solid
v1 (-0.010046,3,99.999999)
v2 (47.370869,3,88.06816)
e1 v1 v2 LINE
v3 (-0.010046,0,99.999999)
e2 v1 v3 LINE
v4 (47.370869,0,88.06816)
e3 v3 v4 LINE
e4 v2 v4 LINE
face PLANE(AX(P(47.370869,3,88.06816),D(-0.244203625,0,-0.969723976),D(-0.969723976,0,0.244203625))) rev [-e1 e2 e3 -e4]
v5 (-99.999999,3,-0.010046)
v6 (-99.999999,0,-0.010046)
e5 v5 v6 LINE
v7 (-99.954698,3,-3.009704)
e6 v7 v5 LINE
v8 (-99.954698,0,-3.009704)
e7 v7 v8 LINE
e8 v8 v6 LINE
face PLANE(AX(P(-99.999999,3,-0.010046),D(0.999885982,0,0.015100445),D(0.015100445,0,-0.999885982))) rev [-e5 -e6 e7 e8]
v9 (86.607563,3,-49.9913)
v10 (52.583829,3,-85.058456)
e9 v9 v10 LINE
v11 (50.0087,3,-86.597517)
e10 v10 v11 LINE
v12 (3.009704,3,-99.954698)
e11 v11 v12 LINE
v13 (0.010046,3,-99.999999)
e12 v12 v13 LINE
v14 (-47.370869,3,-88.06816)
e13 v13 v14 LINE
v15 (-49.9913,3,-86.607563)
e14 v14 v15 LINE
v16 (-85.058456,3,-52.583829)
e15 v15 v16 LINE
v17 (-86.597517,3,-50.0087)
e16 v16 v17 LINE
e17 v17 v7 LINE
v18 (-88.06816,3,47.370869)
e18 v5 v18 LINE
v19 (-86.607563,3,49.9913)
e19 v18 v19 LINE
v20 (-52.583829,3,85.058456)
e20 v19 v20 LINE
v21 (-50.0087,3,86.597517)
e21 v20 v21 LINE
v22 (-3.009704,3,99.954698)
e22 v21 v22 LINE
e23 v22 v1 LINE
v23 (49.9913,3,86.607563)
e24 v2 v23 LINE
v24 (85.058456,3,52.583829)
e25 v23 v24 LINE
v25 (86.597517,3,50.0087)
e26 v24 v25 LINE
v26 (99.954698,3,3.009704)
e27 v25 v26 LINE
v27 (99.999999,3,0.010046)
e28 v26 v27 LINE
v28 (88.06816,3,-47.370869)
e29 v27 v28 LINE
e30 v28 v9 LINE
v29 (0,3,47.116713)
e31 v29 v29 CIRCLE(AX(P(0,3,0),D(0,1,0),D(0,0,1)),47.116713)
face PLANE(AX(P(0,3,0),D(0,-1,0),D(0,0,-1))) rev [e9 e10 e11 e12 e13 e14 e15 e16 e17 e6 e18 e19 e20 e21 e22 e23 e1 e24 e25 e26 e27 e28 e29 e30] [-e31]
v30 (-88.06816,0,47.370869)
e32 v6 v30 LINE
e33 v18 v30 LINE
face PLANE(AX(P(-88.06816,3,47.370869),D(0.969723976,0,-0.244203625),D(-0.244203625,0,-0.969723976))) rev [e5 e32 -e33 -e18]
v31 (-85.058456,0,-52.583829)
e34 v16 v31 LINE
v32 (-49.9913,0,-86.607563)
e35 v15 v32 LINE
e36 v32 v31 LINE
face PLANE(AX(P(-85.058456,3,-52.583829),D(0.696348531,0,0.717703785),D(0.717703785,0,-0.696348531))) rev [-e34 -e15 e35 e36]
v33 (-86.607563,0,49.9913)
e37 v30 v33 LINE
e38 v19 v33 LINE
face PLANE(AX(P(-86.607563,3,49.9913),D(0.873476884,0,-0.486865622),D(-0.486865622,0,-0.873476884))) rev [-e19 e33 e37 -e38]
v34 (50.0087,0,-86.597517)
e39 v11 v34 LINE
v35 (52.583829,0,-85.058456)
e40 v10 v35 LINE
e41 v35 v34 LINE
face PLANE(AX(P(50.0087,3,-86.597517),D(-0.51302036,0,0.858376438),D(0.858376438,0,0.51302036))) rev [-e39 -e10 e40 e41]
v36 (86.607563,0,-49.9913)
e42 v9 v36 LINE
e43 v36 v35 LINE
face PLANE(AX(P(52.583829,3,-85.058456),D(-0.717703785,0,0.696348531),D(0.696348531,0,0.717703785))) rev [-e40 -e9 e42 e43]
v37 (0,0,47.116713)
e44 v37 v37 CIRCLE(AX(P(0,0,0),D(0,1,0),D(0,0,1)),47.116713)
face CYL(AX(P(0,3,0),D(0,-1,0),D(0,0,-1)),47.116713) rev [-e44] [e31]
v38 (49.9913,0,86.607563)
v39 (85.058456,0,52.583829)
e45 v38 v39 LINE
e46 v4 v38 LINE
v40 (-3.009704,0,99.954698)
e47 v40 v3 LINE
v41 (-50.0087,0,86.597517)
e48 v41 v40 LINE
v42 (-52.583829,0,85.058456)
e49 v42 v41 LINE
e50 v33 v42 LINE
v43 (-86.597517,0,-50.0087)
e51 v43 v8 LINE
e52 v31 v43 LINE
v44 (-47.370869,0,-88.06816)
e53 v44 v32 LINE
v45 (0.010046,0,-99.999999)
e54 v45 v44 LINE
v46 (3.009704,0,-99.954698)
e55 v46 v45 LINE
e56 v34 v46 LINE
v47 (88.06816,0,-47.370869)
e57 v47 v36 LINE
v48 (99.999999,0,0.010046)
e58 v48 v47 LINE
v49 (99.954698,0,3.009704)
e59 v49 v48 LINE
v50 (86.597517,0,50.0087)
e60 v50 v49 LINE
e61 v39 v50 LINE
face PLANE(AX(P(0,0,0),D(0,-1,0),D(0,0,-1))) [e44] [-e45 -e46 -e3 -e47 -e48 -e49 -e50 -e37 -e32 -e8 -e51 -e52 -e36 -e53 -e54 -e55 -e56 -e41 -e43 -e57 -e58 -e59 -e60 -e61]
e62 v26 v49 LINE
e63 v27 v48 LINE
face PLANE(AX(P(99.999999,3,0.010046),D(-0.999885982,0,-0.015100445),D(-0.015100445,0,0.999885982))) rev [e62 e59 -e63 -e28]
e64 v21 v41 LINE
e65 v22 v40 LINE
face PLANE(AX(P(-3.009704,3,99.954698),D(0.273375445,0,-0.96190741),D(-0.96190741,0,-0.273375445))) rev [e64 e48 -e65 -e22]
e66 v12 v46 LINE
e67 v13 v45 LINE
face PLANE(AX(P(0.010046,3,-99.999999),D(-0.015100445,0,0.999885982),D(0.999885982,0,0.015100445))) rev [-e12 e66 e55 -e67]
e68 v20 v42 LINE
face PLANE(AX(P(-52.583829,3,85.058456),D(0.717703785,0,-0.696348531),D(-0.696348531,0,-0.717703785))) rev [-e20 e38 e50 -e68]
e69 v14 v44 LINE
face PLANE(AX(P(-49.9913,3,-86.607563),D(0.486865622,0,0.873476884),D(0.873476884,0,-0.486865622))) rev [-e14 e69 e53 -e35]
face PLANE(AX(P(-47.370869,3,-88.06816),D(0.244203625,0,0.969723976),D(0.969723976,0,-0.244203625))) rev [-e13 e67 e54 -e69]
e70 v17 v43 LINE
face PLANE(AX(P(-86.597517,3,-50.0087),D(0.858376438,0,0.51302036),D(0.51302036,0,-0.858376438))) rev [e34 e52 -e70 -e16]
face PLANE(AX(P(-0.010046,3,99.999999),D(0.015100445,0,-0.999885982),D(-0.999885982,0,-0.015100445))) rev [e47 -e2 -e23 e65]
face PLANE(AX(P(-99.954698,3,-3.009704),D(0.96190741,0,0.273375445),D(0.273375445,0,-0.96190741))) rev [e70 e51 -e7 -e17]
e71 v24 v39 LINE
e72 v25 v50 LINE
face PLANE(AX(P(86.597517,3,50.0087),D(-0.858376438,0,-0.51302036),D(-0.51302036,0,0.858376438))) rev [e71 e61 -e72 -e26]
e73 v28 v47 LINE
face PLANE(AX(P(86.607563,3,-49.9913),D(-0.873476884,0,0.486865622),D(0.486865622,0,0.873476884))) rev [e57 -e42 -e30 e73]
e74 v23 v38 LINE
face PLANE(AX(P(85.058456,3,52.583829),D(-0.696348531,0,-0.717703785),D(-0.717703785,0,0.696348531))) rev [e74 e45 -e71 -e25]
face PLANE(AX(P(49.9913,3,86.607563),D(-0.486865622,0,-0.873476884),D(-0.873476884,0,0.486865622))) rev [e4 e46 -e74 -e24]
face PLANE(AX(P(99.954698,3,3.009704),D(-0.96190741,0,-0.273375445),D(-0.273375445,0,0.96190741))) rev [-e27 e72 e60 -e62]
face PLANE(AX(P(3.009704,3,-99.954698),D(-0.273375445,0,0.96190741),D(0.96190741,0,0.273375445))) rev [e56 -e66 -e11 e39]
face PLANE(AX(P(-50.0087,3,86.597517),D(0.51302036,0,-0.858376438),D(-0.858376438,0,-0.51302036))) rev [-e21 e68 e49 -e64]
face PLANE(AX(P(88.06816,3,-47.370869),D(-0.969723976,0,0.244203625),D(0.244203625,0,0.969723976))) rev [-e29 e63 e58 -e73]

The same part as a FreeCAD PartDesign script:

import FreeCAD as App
import Part
import Sketcher
from FreeCAD import Vector

doc = App.newDocument("Part")
params = doc.addObject("Spreadsheet::Sheet", "Params")
for row, (alias, value) in enumerate([
    ("sketch1_length", "3 mm"),
    ("sketch1_length2", "3 mm"),
    ("sketch1_length3", "3 mm"),
    ("sketch1_length4", "3 mm"),
    ("sketch1_length5", "3 mm"),
    ("pad1_length", "3 mm"),
], start=1):
    params.set(f"A{row}", alias)
    params.set(f"B{row}", "=" + value)
    params.setAlias(f"B{row}", alias)

body = doc.addObject("PartDesign::Body", "Body")

# Sketch on XZ plane
sketch1 = body.newObject("Sketcher::SketchObject", "Sketch")
sketch1.AttachmentSupport = (doc.getObject("XZ_Plane"), [""])
sketch1.MapMode = "FlatFace"
sketch1.addGeometry([
    Part.LineSegment(Vector(-99.999999, -0.010046, 0), Vector(-88.06816, 47.370869, 0)),  # 0
    Part.LineSegment(Vector(-88.06816, 47.370869, 0), Vector(-86.607563, 49.9913, 0)),  # 1
    Part.LineSegment(Vector(-86.607563, 49.9913, 0), Vector(-52.583829, 85.058456, 0)),  # 2
    Part.LineSegment(Vector(-52.583829, 85.058456, 0), Vector(-50.0087, 86.597517, 0)),  # 3
    Part.LineSegment(Vector(-50.0087, 86.597517, 0), Vector(-3.009704, 99.954698, 0)),  # 4
    Part.LineSegment(Vector(-3.009704, 99.954698, 0), Vector(-0.010046, 99.999999, 0)),  # 5
    Part.LineSegment(Vector(-0.010046, 99.999999, 0), Vector(47.370869, 88.06816, 0)),  # 6
    Part.LineSegment(Vector(47.370869, 88.06816, 0), Vector(49.9913, 86.607563, 0)),  # 7
    Part.LineSegment(Vector(49.9913, 86.607563, 0), Vector(85.058456, 52.583829, 0)),  # 8
    Part.LineSegment(Vector(85.058456, 52.583829, 0), Vector(86.597517, 50.0087, 0)),  # 9
    Part.LineSegment(Vector(86.597517, 50.0087, 0), Vector(99.954698, 3.009704, 0)),  # 10
    Part.LineSegment(Vector(99.954698, 3.009704, 0), Vector(99.999999, 0.010046, 0)),  # 11
    Part.LineSegment(Vector(99.999999, 0.010046, 0), Vector(88.06816, -47.370869, 0)),  # 12
    Part.LineSegment(Vector(88.06816, -47.370869, 0), Vector(86.607563, -49.9913, 0)),  # 13
    Part.LineSegment(Vector(86.607563, -49.9913, 0), Vector(52.583829, -85.058456, 0)),  # 14
    Part.LineSegment(Vector(52.583829, -85.058456, 0), Vector(50.0087, -86.597517, 0)),  # 15
    Part.LineSegment(Vector(50.0087, -86.597517, 0), Vector(3.009704, -99.954698, 0)),  # 16
    Part.LineSegment(Vector(3.009704, -99.954698, 0), Vector(0.010046, -99.999999, 0)),  # 17
    Part.LineSegment(Vector(0.010046, -99.999999, 0), Vector(-47.370869, -88.06816, 0)),  # 18
    Part.LineSegment(Vector(-47.370869, -88.06816, 0), Vector(-49.9913, -86.607563, 0)),  # 19
    Part.LineSegment(Vector(-49.9913, -86.607563, 0), Vector(-85.058456, -52.583829, 0)),  # 20
    Part.LineSegment(Vector(-85.058456, -52.583829, 0), Vector(-86.597517, -50.0087, 0)),  # 21
    Part.LineSegment(Vector(-86.597517, -50.0087, 0), Vector(-99.954698, -3.009704, 0)),  # 22
    Part.LineSegment(Vector(-99.954698, -3.009704, 0), Vector(-99.999999, -0.010046, 0)),  # 23
    Part.Circle(Vector(0, 0, 0), Vector(0, 0, 1), 47.116713),  # 24
], False)
sketch1.addConstraint([
    Sketcher.Constraint("Coincident", 0, 2, 1, 1),
    Sketcher.Constraint("Coincident", 1, 2, 2, 1),
    Sketcher.Constraint("Coincident", 2, 2, 3, 1),
    Sketcher.Constraint("Coincident", 3, 2, 4, 1),
    Sketcher.Constraint("Coincident", 4, 2, 5, 1),
    Sketcher.Constraint("Coincident", 5, 2, 6, 1),
    Sketcher.Constraint("Coincident", 6, 2, 7, 1),
    Sketcher.Constraint("Coincident", 7, 2, 8, 1),
    Sketcher.Constraint("Coincident", 8, 2, 9, 1),
    Sketcher.Constraint("Coincident", 9, 2, 10, 1),
    Sketcher.Constraint("Coincident", 10, 2, 11, 1),
    Sketcher.Constraint("Coincident", 11, 2, 12, 1),
    Sketcher.Constraint("Coincident", 12, 2, 13, 1),
    Sketcher.Constraint("Coincident", 13, 2, 14, 1),
    Sketcher.Constraint("Coincident", 14, 2, 15, 1),
    Sketcher.Constraint("Coincident", 15, 2, 16, 1),
    Sketcher.Constraint("Coincident", 16, 2, 17, 1),
    Sketcher.Constraint("Coincident", 17, 2, 18, 1),
    Sketcher.Constraint("Coincident", 18, 2, 19, 1),
    Sketcher.Constraint("Coincident", 19, 2, 20, 1),
    Sketcher.Constraint("Coincident", 20, 2, 21, 1),
    Sketcher.Constraint("Coincident", 21, 2, 22, 1),
    Sketcher.Constraint("Coincident", 22, 2, 23, 1),
    Sketcher.Constraint("Coincident", 23, 2, 0, 1),
    Sketcher.Constraint("Coincident", 24, 3, -1, 1),
    Sketcher.Constraint("Distance", 1, 3.0),
    Sketcher.Constraint("Distance", 3, 3.0),
    Sketcher.Constraint("Distance", 5, 3.0),
    Sketcher.Constraint("Distance", 7, 3.0),
    Sketcher.Constraint("Distance", 9, 3.0),
    Sketcher.Constraint("Distance", 11, 3.0),
    Sketcher.Constraint("Distance", 13, 3.0),
    Sketcher.Constraint("Distance", 15, 3.0),
    Sketcher.Constraint("Distance", 17, 3.0),
    Sketcher.Constraint("Distance", 19, 3.0),
    Sketcher.Constraint("Distance", 21, 3.0),
    Sketcher.Constraint("Distance", 23, 3.0),
    Sketcher.Constraint("DistanceY", -1, 1, 5, 2, 99.999999),
    Sketcher.Constraint("DistanceX", -1, 1, 11, 2, 99.999999),
    Sketcher.Constraint("DistanceY", 17, 2, -1, 1, 99.999999),
    Sketcher.Constraint("DistanceX", 23, 2, -1, 1, 99.999999),
    Sketcher.Constraint("DistanceX", 3, 2, 7, 2, 99.999999),
    Sketcher.Constraint("DistanceY", 13, 2, 9, 2, 99.999999),
    Sketcher.Constraint("DistanceX", 19, 2, 15, 2, 99.999999),
    Sketcher.Constraint("DistanceY", 21, 2, 1, 2, 99.999999),
    Sketcher.Constraint("Diameter", 24, 94.233427),
    Sketcher.Constraint("DistanceY", -1, 1, 1, 2, 49.9913),
    Sketcher.Constraint("DistanceX", 3, 2, -1, 1, 50.0087),
    Sketcher.Constraint("DistanceY", -1, 1, 4, 2, 99.954698),
    Sketcher.Constraint("DistanceY", -1, 1, 9, 2, 50.0087),
    Sketcher.Constraint("DistanceX", -1, 1, 10, 2, 99.954698),
    Sketcher.Constraint("DistanceX", -1, 1, 15, 2, 50.0087),
    Sketcher.Constraint("DistanceY", 16, 2, -1, 1, 99.954698),
    Sketcher.Constraint("DistanceX", 22, 2, -1, 1, 99.954698),
    Sketcher.Constraint("DistanceX", 2, 2, 6, 2, 99.954698),
    Sketcher.Constraint("DistanceX", 5, 2, 8, 2, 85.068502),
    Sketcher.Constraint("DistanceY", 12, 2, 8, 2, 99.954698),
    Sketcher.Constraint("DistanceY", 14, 2, 11, 2, 85.068502),
    Sketcher.Constraint("DistanceX", 18, 2, 14, 2, 99.954698),
    Sketcher.Constraint("DistanceX", 20, 2, 17, 2, 85.068502),
    Sketcher.Constraint("DistanceY", 20, 2, 0, 2, 99.954698),
    Sketcher.Constraint("DistanceX", 0, 2, -1, 1, 88.06816),
    Sketcher.Constraint("DistanceY", -1, 1, 0, 2, 47.370869),
    Sketcher.Constraint("DistanceX", 2, 2, -1, 1, 52.583829),
    Sketcher.Constraint("DistanceY", -1, 1, 6, 2, 88.06816),
    Sketcher.Constraint("DistanceY", -1, 1, 8, 2, 52.583829),
    Sketcher.Constraint("DistanceX", -1, 1, 12, 2, 88.06816),
    Sketcher.Constraint("DistanceX", -1, 1, 14, 2, 52.583829),
    Sketcher.Constraint("DistanceY", 18, 2, -1, 1, 88.06816),
    Sketcher.Constraint("DistanceY", 3, 2, 4, 2, 13.357181),
    Sketcher.Constraint("DistanceX", 1, 2, 4, 2, 83.597859),
    Sketcher.Constraint("DistanceY", 10, 2, 7, 2, 83.597859),
    Sketcher.Constraint("DistanceX", 16, 2, 13, 2, 83.597859),
    Sketcher.Constraint("DistanceY", 19, 2, 22, 2, 83.597859),
])
sketch1.setExpression("Constraints[25]", "Params.sketch1_length")
sketch1.setExpression("Constraints[26]", "Params.sketch1_length2")
sketch1.setExpression("Constraints[27]", "Params.sketch1_length3")
sketch1.setExpression("Constraints[28]", "Params.sketch1_length4")
sketch1.setExpression("Constraints[29]", "Params.sketch1_length5")
pad1 = body.newObject("PartDesign::Pad", "Pad")
pad1.Profile = sketch1
pad1.setExpression("Length", "Params.pad1_length")
pad1.Reversed = True

doc.recompute()
